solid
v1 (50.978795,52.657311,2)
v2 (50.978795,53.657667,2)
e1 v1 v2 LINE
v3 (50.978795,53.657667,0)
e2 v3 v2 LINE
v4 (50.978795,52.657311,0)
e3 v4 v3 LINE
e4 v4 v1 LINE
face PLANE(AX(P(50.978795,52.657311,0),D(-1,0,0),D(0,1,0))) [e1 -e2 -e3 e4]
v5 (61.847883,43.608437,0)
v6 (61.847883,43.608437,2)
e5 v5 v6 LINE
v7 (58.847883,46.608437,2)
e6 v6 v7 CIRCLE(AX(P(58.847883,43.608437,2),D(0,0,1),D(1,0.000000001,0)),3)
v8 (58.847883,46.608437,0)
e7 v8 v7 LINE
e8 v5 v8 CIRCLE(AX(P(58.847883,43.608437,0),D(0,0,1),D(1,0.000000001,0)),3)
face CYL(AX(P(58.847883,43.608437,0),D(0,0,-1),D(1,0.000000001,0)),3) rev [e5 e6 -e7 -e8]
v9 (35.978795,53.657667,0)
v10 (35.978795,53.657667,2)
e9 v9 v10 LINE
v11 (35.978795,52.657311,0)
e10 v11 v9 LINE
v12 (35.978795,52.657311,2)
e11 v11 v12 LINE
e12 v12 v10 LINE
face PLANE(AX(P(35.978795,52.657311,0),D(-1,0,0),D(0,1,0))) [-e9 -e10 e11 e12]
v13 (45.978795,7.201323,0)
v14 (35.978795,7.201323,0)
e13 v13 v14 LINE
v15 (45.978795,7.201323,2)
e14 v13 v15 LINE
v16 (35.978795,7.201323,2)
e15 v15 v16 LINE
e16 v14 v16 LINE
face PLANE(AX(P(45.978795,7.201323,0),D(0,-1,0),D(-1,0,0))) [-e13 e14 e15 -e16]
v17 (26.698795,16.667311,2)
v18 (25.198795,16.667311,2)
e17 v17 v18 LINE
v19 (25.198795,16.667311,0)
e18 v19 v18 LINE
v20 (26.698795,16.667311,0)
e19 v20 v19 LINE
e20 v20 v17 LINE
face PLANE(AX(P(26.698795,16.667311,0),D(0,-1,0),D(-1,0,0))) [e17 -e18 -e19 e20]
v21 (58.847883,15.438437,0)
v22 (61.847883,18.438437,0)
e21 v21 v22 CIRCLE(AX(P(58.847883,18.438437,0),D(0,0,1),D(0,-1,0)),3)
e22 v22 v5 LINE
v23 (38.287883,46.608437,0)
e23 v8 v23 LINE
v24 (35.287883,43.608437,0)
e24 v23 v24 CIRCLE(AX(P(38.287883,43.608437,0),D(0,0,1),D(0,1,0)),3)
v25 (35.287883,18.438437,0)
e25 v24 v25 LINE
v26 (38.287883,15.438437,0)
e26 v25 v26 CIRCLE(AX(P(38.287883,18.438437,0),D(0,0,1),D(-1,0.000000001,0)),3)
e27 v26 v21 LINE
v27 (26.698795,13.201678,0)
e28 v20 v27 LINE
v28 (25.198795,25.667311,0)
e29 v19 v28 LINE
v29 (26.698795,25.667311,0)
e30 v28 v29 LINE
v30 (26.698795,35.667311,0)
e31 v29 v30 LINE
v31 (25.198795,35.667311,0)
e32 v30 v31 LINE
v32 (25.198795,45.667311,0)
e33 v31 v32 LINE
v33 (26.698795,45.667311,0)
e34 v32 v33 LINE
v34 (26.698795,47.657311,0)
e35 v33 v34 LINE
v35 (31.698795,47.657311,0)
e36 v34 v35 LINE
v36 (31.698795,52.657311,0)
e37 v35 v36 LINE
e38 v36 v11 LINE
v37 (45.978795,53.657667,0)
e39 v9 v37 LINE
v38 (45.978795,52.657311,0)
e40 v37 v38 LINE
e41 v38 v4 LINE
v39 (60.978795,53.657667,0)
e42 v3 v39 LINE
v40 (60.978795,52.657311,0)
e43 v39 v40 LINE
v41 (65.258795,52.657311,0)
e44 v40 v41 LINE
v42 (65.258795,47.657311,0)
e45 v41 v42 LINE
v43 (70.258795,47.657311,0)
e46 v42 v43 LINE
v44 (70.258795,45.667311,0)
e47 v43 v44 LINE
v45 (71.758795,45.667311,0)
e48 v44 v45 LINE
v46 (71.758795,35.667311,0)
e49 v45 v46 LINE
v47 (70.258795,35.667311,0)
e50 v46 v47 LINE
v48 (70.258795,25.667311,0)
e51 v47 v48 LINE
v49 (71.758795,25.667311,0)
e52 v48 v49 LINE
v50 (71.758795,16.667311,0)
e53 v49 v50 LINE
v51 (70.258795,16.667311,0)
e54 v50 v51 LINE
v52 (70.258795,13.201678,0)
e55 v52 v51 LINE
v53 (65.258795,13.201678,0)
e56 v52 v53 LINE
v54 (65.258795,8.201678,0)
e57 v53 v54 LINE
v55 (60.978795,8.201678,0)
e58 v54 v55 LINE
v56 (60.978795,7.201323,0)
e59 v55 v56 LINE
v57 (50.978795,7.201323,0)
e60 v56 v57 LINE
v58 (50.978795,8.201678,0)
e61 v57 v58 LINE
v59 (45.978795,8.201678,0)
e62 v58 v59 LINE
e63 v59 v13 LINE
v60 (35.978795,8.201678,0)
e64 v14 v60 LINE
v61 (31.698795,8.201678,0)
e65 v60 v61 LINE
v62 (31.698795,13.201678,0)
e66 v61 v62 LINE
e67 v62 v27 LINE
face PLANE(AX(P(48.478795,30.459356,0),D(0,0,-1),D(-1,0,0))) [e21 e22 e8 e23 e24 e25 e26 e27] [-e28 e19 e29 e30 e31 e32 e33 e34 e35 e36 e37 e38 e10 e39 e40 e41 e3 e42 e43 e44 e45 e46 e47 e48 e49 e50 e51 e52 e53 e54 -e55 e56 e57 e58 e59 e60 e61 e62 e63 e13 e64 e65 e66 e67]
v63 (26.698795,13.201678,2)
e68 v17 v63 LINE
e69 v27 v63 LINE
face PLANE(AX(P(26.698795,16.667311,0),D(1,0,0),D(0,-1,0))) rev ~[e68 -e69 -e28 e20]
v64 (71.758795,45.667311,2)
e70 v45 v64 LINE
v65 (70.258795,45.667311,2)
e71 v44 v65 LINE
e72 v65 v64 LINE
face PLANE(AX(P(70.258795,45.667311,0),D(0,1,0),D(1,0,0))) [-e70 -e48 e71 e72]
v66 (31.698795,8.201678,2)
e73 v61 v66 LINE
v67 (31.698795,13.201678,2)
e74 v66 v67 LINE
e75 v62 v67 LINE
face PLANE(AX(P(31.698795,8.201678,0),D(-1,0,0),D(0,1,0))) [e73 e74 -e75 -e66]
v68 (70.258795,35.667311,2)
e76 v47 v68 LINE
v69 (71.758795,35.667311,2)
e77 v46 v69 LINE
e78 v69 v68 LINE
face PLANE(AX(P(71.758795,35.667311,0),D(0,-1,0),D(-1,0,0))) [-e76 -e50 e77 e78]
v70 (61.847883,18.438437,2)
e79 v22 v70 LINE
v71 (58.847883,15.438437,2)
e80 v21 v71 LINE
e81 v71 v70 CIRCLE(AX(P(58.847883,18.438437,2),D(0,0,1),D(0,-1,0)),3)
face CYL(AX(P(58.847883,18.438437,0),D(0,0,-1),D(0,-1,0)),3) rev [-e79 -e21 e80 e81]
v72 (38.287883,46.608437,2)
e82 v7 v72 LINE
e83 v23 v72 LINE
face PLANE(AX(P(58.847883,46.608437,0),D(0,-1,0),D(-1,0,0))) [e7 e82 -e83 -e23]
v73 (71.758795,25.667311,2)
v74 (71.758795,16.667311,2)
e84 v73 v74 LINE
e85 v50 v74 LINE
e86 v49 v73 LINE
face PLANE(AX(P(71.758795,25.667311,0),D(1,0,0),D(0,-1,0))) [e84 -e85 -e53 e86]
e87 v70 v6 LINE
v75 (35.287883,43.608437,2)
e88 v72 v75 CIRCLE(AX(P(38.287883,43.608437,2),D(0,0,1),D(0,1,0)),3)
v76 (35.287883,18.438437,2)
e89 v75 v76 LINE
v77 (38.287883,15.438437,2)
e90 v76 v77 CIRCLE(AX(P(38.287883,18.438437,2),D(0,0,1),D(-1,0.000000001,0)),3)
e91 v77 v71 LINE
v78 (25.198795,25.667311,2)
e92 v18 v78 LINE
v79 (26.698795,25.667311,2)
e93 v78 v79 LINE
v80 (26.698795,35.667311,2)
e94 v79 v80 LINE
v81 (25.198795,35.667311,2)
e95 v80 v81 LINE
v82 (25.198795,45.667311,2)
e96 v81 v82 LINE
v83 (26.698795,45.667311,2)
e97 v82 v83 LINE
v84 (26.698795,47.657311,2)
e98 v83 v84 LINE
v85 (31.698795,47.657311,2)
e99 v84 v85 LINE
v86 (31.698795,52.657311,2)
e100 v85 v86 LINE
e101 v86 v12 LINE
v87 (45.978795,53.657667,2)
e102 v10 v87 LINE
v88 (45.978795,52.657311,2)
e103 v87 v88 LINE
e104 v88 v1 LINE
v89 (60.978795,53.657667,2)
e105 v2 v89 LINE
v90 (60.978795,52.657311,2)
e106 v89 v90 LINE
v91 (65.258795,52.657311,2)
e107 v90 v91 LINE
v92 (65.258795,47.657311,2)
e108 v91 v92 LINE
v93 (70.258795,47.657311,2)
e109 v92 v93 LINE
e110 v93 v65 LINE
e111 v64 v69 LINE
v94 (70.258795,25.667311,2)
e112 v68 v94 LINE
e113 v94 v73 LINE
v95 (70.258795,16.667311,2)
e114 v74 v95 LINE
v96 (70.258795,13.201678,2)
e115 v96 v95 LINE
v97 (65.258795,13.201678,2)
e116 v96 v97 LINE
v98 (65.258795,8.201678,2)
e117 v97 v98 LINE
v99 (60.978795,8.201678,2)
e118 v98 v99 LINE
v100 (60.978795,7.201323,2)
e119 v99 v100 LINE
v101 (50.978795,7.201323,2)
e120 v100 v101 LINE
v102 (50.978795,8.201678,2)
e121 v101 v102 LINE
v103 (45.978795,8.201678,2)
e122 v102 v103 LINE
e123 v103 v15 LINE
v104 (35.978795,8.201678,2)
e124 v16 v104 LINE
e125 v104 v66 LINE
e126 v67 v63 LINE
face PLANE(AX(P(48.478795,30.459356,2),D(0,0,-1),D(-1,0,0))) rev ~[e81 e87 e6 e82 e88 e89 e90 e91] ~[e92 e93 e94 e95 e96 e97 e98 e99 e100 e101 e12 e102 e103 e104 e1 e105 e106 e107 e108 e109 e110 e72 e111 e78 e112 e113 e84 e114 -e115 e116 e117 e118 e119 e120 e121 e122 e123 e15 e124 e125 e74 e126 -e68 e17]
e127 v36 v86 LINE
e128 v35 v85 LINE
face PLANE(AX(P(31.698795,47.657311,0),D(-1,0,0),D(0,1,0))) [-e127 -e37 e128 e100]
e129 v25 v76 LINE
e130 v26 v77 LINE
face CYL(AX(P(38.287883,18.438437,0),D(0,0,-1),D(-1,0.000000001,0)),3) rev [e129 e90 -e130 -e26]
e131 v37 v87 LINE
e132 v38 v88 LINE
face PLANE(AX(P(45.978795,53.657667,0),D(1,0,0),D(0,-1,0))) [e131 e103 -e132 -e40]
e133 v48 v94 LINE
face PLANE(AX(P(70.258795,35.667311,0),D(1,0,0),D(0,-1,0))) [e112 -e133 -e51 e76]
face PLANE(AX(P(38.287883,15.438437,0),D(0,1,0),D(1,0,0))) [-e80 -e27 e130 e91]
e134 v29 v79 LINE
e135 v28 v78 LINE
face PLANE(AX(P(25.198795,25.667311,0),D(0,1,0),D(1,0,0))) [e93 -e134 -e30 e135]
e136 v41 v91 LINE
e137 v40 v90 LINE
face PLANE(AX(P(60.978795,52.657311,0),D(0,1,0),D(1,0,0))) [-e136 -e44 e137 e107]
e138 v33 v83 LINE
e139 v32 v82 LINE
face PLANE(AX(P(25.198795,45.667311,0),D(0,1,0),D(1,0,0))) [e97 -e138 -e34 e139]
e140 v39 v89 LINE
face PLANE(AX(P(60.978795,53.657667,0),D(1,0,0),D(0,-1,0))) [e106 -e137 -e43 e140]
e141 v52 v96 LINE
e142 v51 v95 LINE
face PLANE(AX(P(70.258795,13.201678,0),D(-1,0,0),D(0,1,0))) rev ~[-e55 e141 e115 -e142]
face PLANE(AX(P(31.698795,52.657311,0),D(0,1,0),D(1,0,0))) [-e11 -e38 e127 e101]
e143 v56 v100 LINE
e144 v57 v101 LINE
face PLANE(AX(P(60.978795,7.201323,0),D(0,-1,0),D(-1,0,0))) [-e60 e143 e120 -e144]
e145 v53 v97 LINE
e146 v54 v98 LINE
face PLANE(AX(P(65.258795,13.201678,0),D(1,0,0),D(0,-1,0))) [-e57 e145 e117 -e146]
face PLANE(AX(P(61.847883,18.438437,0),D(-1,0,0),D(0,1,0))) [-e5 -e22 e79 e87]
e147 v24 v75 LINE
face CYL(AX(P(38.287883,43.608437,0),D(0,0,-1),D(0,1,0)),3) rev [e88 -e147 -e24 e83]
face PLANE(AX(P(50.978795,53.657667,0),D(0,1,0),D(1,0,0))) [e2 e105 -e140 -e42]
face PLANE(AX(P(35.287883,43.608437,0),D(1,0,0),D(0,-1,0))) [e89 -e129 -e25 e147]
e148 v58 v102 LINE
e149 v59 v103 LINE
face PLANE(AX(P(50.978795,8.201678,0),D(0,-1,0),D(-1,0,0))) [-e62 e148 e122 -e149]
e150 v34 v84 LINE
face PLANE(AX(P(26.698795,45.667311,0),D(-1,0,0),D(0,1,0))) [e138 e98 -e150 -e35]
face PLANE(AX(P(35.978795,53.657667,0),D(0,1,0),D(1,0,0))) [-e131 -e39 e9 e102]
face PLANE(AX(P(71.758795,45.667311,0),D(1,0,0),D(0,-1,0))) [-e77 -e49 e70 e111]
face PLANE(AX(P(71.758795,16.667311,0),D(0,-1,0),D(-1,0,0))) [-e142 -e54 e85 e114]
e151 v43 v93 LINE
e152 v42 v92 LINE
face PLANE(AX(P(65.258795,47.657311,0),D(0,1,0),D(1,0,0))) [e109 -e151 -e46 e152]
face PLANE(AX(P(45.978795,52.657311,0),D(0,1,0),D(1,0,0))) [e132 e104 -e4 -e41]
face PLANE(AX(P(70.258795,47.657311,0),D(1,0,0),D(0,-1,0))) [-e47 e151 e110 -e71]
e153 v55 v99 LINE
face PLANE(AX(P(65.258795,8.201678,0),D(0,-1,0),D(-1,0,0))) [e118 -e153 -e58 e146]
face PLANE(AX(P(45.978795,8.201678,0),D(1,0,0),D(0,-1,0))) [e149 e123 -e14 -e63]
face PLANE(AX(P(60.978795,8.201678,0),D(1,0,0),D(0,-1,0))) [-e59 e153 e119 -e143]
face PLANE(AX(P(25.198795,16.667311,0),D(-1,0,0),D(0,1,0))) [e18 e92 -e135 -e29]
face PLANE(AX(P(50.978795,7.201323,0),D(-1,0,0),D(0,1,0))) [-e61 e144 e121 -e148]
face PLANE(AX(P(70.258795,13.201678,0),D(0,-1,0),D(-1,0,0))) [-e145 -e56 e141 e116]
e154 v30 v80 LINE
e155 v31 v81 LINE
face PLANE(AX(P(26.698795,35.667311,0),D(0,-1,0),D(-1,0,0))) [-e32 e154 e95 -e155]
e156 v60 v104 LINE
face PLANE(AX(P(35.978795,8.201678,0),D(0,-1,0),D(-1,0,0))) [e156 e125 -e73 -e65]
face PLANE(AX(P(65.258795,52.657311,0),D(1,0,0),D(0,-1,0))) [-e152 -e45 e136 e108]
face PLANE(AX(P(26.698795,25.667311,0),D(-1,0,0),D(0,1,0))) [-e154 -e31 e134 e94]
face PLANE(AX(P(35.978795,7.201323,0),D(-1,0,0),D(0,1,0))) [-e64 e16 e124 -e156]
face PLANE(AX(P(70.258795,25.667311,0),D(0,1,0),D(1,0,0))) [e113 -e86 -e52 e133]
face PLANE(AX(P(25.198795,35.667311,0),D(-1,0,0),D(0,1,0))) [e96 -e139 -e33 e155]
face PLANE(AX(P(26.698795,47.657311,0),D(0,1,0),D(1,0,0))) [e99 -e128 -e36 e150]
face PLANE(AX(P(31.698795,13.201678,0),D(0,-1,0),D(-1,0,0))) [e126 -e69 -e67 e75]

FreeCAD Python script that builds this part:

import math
import FreeCAD as App
import Part
import Sketcher

V = App.Vector
Q = App.Units.Quantity


def add_polygon(sketch, points):
    """Adds a closed chain of lines whose ends are joined by coincident constraints."""
    first, n = sketch.GeometryCount, len(points)
    for a, b in zip(points, points[1:] + points[:1]):
        sketch.addGeometry(Part.LineSegment(App.Vector(*a, 0), App.Vector(*b, 0)), False)
    for i in range(n):
        sketch.addConstraint(Sketcher.Constraint("Coincident", first + i, 2, first + (i + 1) % n, 1))

doc = App.newDocument("Part")
body = doc.addObject("PartDesign::Body", "Body")

# Sketch on XY plane
sketch1 = body.newObject("Sketcher::SketchObject", "Sketch")
sketch1.AttachmentSupport = (doc.getObject("XY_Plane"), [""])
sketch1.MapMode = "FlatFace"
add_polygon(sketch1, [(36, 52.7), (31.7, 52.7), (31.7, 47.7), (26.7, 47.7), (26.7, 45.7), (25.2, 45.7), (25.2, 35.7), (26.7, 35.7), (26.7, 25.7), (25.2, 25.7), (25.2, 16.7), (26.7, 16.7), (26.7, 13.2), (31.7, 13.2), (31.7, 8.2), (36, 8.2), (36, 7.2), (46, 7.2), (46, 8.2), (51, 8.2), (51, 7.2), (61, 7.2), (61, 8.2), (65.3, 8.2), (65.3, 13.2), (70.3, 13.2), (70.3, 16.7), (71.8, 16.7), (71.8, 25.7), (70.3, 25.7), (70.3, 35.7), (71.8, 35.7), (71.8, 45.7), (70.3, 45.7), (70.3, 47.7), (65.3, 47.7), (65.3, 52.7), (61, 52.7), (61, 53.7), (51, 53.7), (51, 52.7), (46, 52.7), (46, 53.7), (36, 53.7)])  # lines 0-43
sketch1.addGeometry(Part.ArcOfCircle(Part.Circle(V(58.8, 43.6, 0), V(0, 0, 1), 3), math.radians(0), math.radians(90)), False)  # 44
sketch1.addGeometry(Part.LineSegment(V(61.8, 43.6, 0), V(61.8, 18.4, 0)), False)  # 45
sketch1.addGeometry(Part.ArcOfCircle(Part.Circle(V(58.8, 18.4, 0), V(0, 0, 1), 3), math.radians(-90), math.radians(0)), False)  # 46
sketch1.addGeometry(Part.LineSegment(V(58.8, 15.4, 0), V(38.3, 15.4, 0)), False)  # 47
sketch1.addGeometry(Part.ArcOfCircle(Part.Circle(V(38.3, 18.4, 0), V(0, 0, 1), 3), math.radians(180), math.radians(270)), False)  # 48
sketch1.addGeometry(Part.LineSegment(V(35.3, 18.4, 0), V(35.3, 43.6, 0)), False)  # 49
sketch1.addGeometry(Part.ArcOfCircle(Part.Circle(V(38.3, 43.6, 0), V(0, 0, 1), 3), math.radians(90), math.radians(180)), False)  # 50
sketch1.addGeometry(Part.LineSegment(V(38.3, 46.6, 0), V(58.8, 46.6, 0)), False)  # 51
sketch1.addConstraint([
    Sketcher.Constraint("Tangent", 44, 1, 45, 1),
    Sketcher.Constraint("Tangent", 45, 2, 46, 2),
    Sketcher.Constraint("Tangent", 46, 1, 47, 1),
    Sketcher.Constraint("Tangent", 47, 2, 48, 2),
    Sketcher.Constraint("Tangent", 48, 1, 49, 1),
    Sketcher.Constraint("Tangent", 49, 2, 50, 2),
    Sketcher.Constraint("Tangent", 50, 1, 51, 1),
    Sketcher.Constraint("Tangent", 51, 2, 44, 2),
    Sketcher.Constraint("Horizontal", 0),
    Sketcher.Constraint("Vertical", 1),
    Sketcher.Constraint("Horizontal", 2),
    Sketcher.Constraint("Vertical", 3),
    Sketcher.Constraint("Horizontal", 4),
    Sketcher.Constraint("Vertical", 5),
    Sketcher.Constraint("Horizontal", 6),
    Sketcher.Constraint("Vertical", 7),
    Sketcher.Constraint("Horizontal", 8),
    Sketcher.Constraint("Vertical", 9),
    Sketcher.Constraint("Horizontal", 10),
    Sketcher.Constraint("Vertical", 11),
    Sketcher.Constraint("Horizontal", 12),
    Sketcher.Constraint("Vertical", 13),
    Sketcher.Constraint("Horizontal", 14),
    Sketcher.Constraint("Vertical", 15),
    Sketcher.Constraint("Horizontal", 16),
    Sketcher.Constraint("Vertical", 17),
    Sketcher.Constraint("Horizontal", 18),
    Sketcher.Constraint("Vertical", 19),
    Sketcher.Constraint("Horizontal", 20),
    Sketcher.Constraint("Vertical", 21),
    Sketcher.Constraint("Horizontal", 22),
    Sketcher.Constraint("Vertical", 23),
    Sketcher.Constraint("Horizontal", 24),
    Sketcher.Constraint("Vertical", 25),
    Sketcher.Constraint("Horizontal", 26),
    Sketcher.Constraint("Vertical", 27),
    Sketcher.Constraint("Horizontal", 28),
    Sketcher.Constraint("Vertical", 29),
    Sketcher.Constraint("Horizontal", 30),
    Sketcher.Constraint("Vertical", 31),
    Sketcher.Constraint("Horizontal", 32),
    Sketcher.Constraint("Vertical", 33),
    Sketcher.Constraint("Horizontal", 34),
    Sketcher.Constraint("Vertical", 35),
    Sketcher.Constraint("Horizontal", 36),
    Sketcher.Constraint("Vertical", 37),
    Sketcher.Constraint("Horizontal", 38),
    Sketcher.Constraint("Vertical", 39),
    Sketcher.Constraint("Horizontal", 40),
    Sketcher.Constraint("Vertical", 41),
    Sketcher.Constraint("Horizontal", 42),
    Sketcher.Constraint("Vertical", 43),
    Sketcher.Constraint("Vertical", 45),
    Sketcher.Constraint("Horizontal", 47),
    Sketcher.Constraint("Vertical", 49),
    Sketcher.Constraint("Horizontal", 51),
    Sketcher.Constraint("Equal", 44, 46),
    Sketcher.Constraint("Equal", 46, 48),
    Sketcher.Constraint("Equal", 48, 50),
    Sketcher.Constraint("Horizontal", 14, 2, 17, 2),
    Sketcher.Constraint("Horizontal", 16, 2, 19, 2),
    Sketcher.Constraint("Horizontal", 18, 2, 21, 2),
    Sketcher.Constraint("Horizontal", 12, 2, 23, 2),
    Sketcher.Constraint("Horizontal", 10, 2, 25, 2),
    Sketcher.Constraint("Horizontal", 8, 2, 27, 2),
    Sketcher.Constraint("Horizontal", 6, 2, 29, 2),
    Sketcher.Constraint("Horizontal", 4, 2, 31, 2),
    Sketcher.Constraint("Horizontal", 2, 2, 33, 2),
    Sketcher.Constraint("Horizontal", 0, 2, 35, 2),
    Sketcher.Constraint("Horizontal", 36, 2, 39, 2),
    Sketcher.Constraint("Horizontal", 38, 2, 41, 2),
    Sketcher.Constraint("Vertical", 3, 2, 6, 2),
    Sketcher.Constraint("Vertical", 5, 2, 8, 2),
    Sketcher.Constraint("Vertical", 7, 2, 10, 2),
    Sketcher.Constraint("Vertical", 1, 2, 12, 2),
    Sketcher.Constraint("Vertical", 25, 2, 28, 2),
    Sketcher.Constraint("Vertical", 27, 2, 30, 2),
    Sketcher.Constraint("Vertical", 29, 2, 32, 2),
    Sketcher.Constraint("Vertical", 23, 2, 34, 2),
    Sketcher.Constraint("Vertical", 21, 2, 36, 2),
    Sketcher.Constraint("Vertical", 19, 2, 38, 2),
    Sketcher.Constraint("Vertical", 17, 2, 40, 2),
    Sketcher.Constraint("Vertical", 15, 2, 42, 2),
    Sketcher.Constraint("Equal", 12, 18),
    Sketcher.Constraint("Equal", 16, 20),
    Sketcher.Constraint("Equal", 14, 22),
    Sketcher.Constraint("Equal", 18, 24),
    Sketcher.Constraint("Equal", 10, 26),
    Sketcher.Constraint("Equal", 40, 1),
    Sketcher.Constraint("Equal", 42, 5),
    Sketcher.Constraint("Equal", 5, 7),
    Sketcher.Constraint("Equal", 1, 13),
    Sketcher.Constraint("Equal", 21, 37),
    Sketcher.Constraint("Radius", 44, Q("3 mm")),
    Sketcher.Constraint("DistanceX", 2, 2, 2, 1, Q("5 mm")),
    Sketcher.Constraint("DistanceX", 16, 1, 16, 2, Q("10 mm")),
    Sketcher.Constraint("DistanceY", 9, 2, 9, 1, Q("9 mm")),
    Sketcher.Constraint("DistanceX", 4, 2, 4, 1, Q("1.5 mm")),
    Sketcher.Constraint("DistanceX", 0, 2, 0, 1, Q("4.28 mm")),
    Sketcher.Constraint("DistanceX", 47, 2, 47, 1, Q("20.56 mm")),
    Sketcher.Constraint("DistanceY", 3, 2, 3, 1, Q("1.99 mm")),
    Sketcher.Constraint("DistanceY", 45, 2, 45, 1, Q("25.17 mm")),
    Sketcher.Constraint("DistanceY", 11, 2, 11, 1, Q("3.465633 mm")),
    Sketcher.Constraint("DistanceY", 15, 2, 15, 1, Q("1.000356 mm")),
    Sketcher.Constraint("DistanceY", -1, 1, 0, 2, Q("52.657311 mm")),
    Sketcher.Constraint("DistanceY", 11, 2, 48, 3, Q("5.236759 mm")),
    Sketcher.Constraint("DistanceX", -1, 1, 44, 3, Q("58.847883 mm")),
    Sketcher.Constraint("DistanceX", -1, 1, 0, 2, Q("31.698795 mm")),
])
pad1 = body.newObject("PartDesign::Pad", "Pad")
pad1.Profile = sketch1
pad1.Length = 2

doc.recompute()
